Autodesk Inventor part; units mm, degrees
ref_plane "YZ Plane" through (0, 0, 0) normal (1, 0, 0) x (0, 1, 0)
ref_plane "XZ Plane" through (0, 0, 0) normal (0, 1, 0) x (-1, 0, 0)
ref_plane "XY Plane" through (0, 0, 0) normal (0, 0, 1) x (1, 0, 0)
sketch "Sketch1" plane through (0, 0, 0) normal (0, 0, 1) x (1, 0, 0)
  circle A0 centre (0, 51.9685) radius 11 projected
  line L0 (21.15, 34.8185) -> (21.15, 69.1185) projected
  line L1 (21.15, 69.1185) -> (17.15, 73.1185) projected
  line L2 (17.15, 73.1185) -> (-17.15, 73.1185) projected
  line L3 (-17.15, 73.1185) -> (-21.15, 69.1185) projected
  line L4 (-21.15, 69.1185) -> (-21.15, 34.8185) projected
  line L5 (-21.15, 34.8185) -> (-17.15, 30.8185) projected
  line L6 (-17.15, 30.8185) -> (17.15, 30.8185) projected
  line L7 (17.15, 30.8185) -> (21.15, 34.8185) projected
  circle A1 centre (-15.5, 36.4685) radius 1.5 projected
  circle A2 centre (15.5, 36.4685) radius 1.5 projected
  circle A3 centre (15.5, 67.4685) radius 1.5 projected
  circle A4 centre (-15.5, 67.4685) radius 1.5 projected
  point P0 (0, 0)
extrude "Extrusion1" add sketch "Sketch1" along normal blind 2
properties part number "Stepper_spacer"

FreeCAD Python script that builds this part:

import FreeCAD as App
import Part
import Sketcher
from FreeCAD import Vector

doc = App.newDocument("Part")
params = doc.addObject("Spreadsheet::Sheet", "Params")
for row, (alias, value) in enumerate([
    ("sketch1_diameter", "3 mm"),
    ("sketch1_diameter2", "22 mm"),
    ("sketch1_width", "34.3 mm"),
    ("pad1_length", "2 mm"),
], start=1):
    params.set(f"A{row}", alias)
    params.set(f"B{row}", "=" + value)
    params.setAlias(f"B{row}", alias)

body = doc.addObject("PartDesign::Body", "Body")

# Sketch on XY plane
sketch1 = doc.addObject("Sketcher::SketchObject", "Sketch")
body.addObject(sketch1)
sketch1.AttachmentSupport = (doc.XY_Plane, [""])
sketch1.MapMode = "FlatFace"
sketch1.addGeometry([
    Part.LineSegment(Vector(17.15, 30.8185, 0), Vector(21.15, 34.8185, 0)),  # 0
    Part.LineSegment(Vector(21.15, 34.8185, 0), Vector(21.15, 69.1185, 0)),  # 1
    Part.LineSegment(Vector(21.15, 69.1185, 0), Vector(17.15, 73.1185, 0)),  # 2
    Part.LineSegment(Vector(17.15, 73.1185, 0), Vector(-17.15, 73.1185, 0)),  # 3
    Part.LineSegment(Vector(-17.15, 73.1185, 0), Vector(-21.15, 69.1185, 0)),  # 4
    Part.LineSegment(Vector(-21.15, 69.1185, 0), Vector(-21.15, 34.8185, 0)),  # 5
    Part.LineSegment(Vector(-21.15, 34.8185, 0), Vector(-17.15, 30.8185, 0)),  # 6
    Part.LineSegment(Vector(-17.15, 30.8185, 0), Vector(17.15, 30.8185, 0)),  # 7
    Part.Circle(Vector(-15.5, 36.4685, 0), Vector(0, 0, 1), 1.5),  # 8
    Part.Circle(Vector(15.5, 36.4685, 0), Vector(0, 0, 1), 1.5),  # 9
    Part.Circle(Vector(-15.5, 67.4685, 0), Vector(0, 0, 1), 1.5),  # 10
    Part.Circle(Vector(0, 51.9685, 0), Vector(0, 0, 1), 11),  # 11
    Part.Circle(Vector(15.5, 67.4685, 0), Vector(0, 0, 1), 1.5),  # 12
], False)
sketch1.addConstraint([
    Sketcher.Constraint("Coincident", 0, 2, 1, 1),
    Sketcher.Constraint("Coincident", 1, 2, 2, 1),
    Sketcher.Constraint("Coincident", 2, 2, 3, 1),
    Sketcher.Constraint("Coincident", 3, 2, 4, 1),
    Sketcher.Constraint("Coincident", 4, 2, 5, 1),
    Sketcher.Constraint("Coincident", 5, 2, 6, 1),
    Sketcher.Constraint("Coincident", 6, 2, 7, 1),
    Sketcher.Constraint("Coincident", 7, 2, 0, 1),
    Sketcher.Constraint("Vertical", 1),
    Sketcher.Constraint("Horizontal", 3),
    Sketcher.Constraint("Vertical", 5),
    Sketcher.Constraint("Horizontal", 7),
    Sketcher.Constraint("Equal", 8, 9),
    Sketcher.Constraint("Equal", 9, 10),
    Sketcher.Constraint("Equal", 10, 12),
    Sketcher.Constraint("Symmetric", 8, 3, 9, 3, -2),
    Sketcher.Constraint("Symmetric", 10, 3, 12, 3, -2),
    Sketcher.Constraint("Symmetric", 1, 2, 4, 2, -2),
    Sketcher.Constraint("PointOnObject", 11, 3, -2),
    Sketcher.Constraint("Perpendicular", 0, 2),
    Sketcher.Constraint("Perpendicular", 2, 4),
    Sketcher.Constraint("Perpendicular", 4, 6),
    Sketcher.Constraint("Horizontal", 0, 2, 5, 2),
    Sketcher.Constraint("Vertical", 8, 3, 10, 3),
    Sketcher.Constraint("Vertical", 3, 2, 6, 2),
    Sketcher.Constraint("Vertical", 2, 2, 7, 2),
    Sketcher.Constraint("Equal", 7, 1),
    Sketcher.Constraint("Diameter", 8, 3.0),
    Sketcher.Constraint("Diameter", 11, 22.0),
    Sketcher.Constraint("DistanceX", 3, 2, 3, 1, 34.3),
    Sketcher.Constraint("DistanceX", 8, 3, 9, 3, 31.0),
    Sketcher.Constraint("DistanceY", 8, 3, 10, 3, 31.0),
    Sketcher.Constraint("DistanceX", 2, 2, 1, 2, 4.0),
    Sketcher.Constraint("DistanceY", 8, 3, 11, 3, 15.5),
    Sketcher.Constraint("DistanceY", 0, 2, 9, 3, 1.65),
    Sketcher.Constraint("DistanceY", -1, 1, 8, 3, 36.4685),
])
sketch1.setExpression("Constraints[27]", "Params.sketch1_diameter")
sketch1.setExpression("Constraints[28]", "Params.sketch1_diameter2")
sketch1.setExpression("Constraints[29]", "Params.sketch1_width")
pad1 = doc.addObject("PartDesign::Pad", "Pad")
body.addObject(pad1)
pad1.Profile = sketch1
pad1.setExpression("Length", "Params.pad1_length")

doc.recompute()
